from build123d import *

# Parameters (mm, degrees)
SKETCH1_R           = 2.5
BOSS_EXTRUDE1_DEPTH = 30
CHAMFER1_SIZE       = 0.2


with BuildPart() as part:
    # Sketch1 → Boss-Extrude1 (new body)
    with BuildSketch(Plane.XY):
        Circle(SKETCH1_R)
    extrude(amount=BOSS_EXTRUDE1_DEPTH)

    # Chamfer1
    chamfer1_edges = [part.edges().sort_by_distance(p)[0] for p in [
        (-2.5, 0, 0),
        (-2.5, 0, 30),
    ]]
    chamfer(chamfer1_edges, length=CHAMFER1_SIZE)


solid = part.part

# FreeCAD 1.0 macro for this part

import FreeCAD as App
import Part
import Sketcher
from FreeCAD import Vector


def edges_at(feature, points):
    """Names of the edges that pass closest to the given points."""
    edges = feature.Shape.Edges
    near = lambda p: min(range(len(edges)), key=lambda i: edges[i].distToShape(Part.Vertex(*p))[0])
    return sorted({f"Edge{near(p) + 1}" for p in points})

doc = App.newDocument("Part")
body = doc.addObject("PartDesign::Body", "Body")

# Sketch on XY plane
sketch1 = doc.addObject("Sketcher::SketchObject", "Sketch")
body.addObject(sketch1)
sketch1.AttachmentSupport = (doc.XY_Plane, [""])
sketch1.MapMode = "FlatFace"
sketch1.addGeometry(Part.Circle(Vector(0, 0, 0), Vector(0, 0, 1), 2.5), False)
sketch1.addConstraint(Sketcher.Constraint("Coincident", 0, 3, -1, 1))
sketch1.addConstraint(Sketcher.Constraint("Diameter", 0, 5.0))
pad1 = doc.addObject("PartDesign::Pad", "Pad")
body.addObject(pad1)
pad1.Profile = sketch1
pad1.Length = 30
doc.recompute()

chamfer = doc.addObject("PartDesign::Chamfer", "Chamfer")
body.addObject(chamfer)
chamfer.Base = (pad1, edges_at(pad1, [(-2.5, 0, 0), (-2.5, 0, 30)]))
chamfer.Size = 0.2

doc.recompute()
